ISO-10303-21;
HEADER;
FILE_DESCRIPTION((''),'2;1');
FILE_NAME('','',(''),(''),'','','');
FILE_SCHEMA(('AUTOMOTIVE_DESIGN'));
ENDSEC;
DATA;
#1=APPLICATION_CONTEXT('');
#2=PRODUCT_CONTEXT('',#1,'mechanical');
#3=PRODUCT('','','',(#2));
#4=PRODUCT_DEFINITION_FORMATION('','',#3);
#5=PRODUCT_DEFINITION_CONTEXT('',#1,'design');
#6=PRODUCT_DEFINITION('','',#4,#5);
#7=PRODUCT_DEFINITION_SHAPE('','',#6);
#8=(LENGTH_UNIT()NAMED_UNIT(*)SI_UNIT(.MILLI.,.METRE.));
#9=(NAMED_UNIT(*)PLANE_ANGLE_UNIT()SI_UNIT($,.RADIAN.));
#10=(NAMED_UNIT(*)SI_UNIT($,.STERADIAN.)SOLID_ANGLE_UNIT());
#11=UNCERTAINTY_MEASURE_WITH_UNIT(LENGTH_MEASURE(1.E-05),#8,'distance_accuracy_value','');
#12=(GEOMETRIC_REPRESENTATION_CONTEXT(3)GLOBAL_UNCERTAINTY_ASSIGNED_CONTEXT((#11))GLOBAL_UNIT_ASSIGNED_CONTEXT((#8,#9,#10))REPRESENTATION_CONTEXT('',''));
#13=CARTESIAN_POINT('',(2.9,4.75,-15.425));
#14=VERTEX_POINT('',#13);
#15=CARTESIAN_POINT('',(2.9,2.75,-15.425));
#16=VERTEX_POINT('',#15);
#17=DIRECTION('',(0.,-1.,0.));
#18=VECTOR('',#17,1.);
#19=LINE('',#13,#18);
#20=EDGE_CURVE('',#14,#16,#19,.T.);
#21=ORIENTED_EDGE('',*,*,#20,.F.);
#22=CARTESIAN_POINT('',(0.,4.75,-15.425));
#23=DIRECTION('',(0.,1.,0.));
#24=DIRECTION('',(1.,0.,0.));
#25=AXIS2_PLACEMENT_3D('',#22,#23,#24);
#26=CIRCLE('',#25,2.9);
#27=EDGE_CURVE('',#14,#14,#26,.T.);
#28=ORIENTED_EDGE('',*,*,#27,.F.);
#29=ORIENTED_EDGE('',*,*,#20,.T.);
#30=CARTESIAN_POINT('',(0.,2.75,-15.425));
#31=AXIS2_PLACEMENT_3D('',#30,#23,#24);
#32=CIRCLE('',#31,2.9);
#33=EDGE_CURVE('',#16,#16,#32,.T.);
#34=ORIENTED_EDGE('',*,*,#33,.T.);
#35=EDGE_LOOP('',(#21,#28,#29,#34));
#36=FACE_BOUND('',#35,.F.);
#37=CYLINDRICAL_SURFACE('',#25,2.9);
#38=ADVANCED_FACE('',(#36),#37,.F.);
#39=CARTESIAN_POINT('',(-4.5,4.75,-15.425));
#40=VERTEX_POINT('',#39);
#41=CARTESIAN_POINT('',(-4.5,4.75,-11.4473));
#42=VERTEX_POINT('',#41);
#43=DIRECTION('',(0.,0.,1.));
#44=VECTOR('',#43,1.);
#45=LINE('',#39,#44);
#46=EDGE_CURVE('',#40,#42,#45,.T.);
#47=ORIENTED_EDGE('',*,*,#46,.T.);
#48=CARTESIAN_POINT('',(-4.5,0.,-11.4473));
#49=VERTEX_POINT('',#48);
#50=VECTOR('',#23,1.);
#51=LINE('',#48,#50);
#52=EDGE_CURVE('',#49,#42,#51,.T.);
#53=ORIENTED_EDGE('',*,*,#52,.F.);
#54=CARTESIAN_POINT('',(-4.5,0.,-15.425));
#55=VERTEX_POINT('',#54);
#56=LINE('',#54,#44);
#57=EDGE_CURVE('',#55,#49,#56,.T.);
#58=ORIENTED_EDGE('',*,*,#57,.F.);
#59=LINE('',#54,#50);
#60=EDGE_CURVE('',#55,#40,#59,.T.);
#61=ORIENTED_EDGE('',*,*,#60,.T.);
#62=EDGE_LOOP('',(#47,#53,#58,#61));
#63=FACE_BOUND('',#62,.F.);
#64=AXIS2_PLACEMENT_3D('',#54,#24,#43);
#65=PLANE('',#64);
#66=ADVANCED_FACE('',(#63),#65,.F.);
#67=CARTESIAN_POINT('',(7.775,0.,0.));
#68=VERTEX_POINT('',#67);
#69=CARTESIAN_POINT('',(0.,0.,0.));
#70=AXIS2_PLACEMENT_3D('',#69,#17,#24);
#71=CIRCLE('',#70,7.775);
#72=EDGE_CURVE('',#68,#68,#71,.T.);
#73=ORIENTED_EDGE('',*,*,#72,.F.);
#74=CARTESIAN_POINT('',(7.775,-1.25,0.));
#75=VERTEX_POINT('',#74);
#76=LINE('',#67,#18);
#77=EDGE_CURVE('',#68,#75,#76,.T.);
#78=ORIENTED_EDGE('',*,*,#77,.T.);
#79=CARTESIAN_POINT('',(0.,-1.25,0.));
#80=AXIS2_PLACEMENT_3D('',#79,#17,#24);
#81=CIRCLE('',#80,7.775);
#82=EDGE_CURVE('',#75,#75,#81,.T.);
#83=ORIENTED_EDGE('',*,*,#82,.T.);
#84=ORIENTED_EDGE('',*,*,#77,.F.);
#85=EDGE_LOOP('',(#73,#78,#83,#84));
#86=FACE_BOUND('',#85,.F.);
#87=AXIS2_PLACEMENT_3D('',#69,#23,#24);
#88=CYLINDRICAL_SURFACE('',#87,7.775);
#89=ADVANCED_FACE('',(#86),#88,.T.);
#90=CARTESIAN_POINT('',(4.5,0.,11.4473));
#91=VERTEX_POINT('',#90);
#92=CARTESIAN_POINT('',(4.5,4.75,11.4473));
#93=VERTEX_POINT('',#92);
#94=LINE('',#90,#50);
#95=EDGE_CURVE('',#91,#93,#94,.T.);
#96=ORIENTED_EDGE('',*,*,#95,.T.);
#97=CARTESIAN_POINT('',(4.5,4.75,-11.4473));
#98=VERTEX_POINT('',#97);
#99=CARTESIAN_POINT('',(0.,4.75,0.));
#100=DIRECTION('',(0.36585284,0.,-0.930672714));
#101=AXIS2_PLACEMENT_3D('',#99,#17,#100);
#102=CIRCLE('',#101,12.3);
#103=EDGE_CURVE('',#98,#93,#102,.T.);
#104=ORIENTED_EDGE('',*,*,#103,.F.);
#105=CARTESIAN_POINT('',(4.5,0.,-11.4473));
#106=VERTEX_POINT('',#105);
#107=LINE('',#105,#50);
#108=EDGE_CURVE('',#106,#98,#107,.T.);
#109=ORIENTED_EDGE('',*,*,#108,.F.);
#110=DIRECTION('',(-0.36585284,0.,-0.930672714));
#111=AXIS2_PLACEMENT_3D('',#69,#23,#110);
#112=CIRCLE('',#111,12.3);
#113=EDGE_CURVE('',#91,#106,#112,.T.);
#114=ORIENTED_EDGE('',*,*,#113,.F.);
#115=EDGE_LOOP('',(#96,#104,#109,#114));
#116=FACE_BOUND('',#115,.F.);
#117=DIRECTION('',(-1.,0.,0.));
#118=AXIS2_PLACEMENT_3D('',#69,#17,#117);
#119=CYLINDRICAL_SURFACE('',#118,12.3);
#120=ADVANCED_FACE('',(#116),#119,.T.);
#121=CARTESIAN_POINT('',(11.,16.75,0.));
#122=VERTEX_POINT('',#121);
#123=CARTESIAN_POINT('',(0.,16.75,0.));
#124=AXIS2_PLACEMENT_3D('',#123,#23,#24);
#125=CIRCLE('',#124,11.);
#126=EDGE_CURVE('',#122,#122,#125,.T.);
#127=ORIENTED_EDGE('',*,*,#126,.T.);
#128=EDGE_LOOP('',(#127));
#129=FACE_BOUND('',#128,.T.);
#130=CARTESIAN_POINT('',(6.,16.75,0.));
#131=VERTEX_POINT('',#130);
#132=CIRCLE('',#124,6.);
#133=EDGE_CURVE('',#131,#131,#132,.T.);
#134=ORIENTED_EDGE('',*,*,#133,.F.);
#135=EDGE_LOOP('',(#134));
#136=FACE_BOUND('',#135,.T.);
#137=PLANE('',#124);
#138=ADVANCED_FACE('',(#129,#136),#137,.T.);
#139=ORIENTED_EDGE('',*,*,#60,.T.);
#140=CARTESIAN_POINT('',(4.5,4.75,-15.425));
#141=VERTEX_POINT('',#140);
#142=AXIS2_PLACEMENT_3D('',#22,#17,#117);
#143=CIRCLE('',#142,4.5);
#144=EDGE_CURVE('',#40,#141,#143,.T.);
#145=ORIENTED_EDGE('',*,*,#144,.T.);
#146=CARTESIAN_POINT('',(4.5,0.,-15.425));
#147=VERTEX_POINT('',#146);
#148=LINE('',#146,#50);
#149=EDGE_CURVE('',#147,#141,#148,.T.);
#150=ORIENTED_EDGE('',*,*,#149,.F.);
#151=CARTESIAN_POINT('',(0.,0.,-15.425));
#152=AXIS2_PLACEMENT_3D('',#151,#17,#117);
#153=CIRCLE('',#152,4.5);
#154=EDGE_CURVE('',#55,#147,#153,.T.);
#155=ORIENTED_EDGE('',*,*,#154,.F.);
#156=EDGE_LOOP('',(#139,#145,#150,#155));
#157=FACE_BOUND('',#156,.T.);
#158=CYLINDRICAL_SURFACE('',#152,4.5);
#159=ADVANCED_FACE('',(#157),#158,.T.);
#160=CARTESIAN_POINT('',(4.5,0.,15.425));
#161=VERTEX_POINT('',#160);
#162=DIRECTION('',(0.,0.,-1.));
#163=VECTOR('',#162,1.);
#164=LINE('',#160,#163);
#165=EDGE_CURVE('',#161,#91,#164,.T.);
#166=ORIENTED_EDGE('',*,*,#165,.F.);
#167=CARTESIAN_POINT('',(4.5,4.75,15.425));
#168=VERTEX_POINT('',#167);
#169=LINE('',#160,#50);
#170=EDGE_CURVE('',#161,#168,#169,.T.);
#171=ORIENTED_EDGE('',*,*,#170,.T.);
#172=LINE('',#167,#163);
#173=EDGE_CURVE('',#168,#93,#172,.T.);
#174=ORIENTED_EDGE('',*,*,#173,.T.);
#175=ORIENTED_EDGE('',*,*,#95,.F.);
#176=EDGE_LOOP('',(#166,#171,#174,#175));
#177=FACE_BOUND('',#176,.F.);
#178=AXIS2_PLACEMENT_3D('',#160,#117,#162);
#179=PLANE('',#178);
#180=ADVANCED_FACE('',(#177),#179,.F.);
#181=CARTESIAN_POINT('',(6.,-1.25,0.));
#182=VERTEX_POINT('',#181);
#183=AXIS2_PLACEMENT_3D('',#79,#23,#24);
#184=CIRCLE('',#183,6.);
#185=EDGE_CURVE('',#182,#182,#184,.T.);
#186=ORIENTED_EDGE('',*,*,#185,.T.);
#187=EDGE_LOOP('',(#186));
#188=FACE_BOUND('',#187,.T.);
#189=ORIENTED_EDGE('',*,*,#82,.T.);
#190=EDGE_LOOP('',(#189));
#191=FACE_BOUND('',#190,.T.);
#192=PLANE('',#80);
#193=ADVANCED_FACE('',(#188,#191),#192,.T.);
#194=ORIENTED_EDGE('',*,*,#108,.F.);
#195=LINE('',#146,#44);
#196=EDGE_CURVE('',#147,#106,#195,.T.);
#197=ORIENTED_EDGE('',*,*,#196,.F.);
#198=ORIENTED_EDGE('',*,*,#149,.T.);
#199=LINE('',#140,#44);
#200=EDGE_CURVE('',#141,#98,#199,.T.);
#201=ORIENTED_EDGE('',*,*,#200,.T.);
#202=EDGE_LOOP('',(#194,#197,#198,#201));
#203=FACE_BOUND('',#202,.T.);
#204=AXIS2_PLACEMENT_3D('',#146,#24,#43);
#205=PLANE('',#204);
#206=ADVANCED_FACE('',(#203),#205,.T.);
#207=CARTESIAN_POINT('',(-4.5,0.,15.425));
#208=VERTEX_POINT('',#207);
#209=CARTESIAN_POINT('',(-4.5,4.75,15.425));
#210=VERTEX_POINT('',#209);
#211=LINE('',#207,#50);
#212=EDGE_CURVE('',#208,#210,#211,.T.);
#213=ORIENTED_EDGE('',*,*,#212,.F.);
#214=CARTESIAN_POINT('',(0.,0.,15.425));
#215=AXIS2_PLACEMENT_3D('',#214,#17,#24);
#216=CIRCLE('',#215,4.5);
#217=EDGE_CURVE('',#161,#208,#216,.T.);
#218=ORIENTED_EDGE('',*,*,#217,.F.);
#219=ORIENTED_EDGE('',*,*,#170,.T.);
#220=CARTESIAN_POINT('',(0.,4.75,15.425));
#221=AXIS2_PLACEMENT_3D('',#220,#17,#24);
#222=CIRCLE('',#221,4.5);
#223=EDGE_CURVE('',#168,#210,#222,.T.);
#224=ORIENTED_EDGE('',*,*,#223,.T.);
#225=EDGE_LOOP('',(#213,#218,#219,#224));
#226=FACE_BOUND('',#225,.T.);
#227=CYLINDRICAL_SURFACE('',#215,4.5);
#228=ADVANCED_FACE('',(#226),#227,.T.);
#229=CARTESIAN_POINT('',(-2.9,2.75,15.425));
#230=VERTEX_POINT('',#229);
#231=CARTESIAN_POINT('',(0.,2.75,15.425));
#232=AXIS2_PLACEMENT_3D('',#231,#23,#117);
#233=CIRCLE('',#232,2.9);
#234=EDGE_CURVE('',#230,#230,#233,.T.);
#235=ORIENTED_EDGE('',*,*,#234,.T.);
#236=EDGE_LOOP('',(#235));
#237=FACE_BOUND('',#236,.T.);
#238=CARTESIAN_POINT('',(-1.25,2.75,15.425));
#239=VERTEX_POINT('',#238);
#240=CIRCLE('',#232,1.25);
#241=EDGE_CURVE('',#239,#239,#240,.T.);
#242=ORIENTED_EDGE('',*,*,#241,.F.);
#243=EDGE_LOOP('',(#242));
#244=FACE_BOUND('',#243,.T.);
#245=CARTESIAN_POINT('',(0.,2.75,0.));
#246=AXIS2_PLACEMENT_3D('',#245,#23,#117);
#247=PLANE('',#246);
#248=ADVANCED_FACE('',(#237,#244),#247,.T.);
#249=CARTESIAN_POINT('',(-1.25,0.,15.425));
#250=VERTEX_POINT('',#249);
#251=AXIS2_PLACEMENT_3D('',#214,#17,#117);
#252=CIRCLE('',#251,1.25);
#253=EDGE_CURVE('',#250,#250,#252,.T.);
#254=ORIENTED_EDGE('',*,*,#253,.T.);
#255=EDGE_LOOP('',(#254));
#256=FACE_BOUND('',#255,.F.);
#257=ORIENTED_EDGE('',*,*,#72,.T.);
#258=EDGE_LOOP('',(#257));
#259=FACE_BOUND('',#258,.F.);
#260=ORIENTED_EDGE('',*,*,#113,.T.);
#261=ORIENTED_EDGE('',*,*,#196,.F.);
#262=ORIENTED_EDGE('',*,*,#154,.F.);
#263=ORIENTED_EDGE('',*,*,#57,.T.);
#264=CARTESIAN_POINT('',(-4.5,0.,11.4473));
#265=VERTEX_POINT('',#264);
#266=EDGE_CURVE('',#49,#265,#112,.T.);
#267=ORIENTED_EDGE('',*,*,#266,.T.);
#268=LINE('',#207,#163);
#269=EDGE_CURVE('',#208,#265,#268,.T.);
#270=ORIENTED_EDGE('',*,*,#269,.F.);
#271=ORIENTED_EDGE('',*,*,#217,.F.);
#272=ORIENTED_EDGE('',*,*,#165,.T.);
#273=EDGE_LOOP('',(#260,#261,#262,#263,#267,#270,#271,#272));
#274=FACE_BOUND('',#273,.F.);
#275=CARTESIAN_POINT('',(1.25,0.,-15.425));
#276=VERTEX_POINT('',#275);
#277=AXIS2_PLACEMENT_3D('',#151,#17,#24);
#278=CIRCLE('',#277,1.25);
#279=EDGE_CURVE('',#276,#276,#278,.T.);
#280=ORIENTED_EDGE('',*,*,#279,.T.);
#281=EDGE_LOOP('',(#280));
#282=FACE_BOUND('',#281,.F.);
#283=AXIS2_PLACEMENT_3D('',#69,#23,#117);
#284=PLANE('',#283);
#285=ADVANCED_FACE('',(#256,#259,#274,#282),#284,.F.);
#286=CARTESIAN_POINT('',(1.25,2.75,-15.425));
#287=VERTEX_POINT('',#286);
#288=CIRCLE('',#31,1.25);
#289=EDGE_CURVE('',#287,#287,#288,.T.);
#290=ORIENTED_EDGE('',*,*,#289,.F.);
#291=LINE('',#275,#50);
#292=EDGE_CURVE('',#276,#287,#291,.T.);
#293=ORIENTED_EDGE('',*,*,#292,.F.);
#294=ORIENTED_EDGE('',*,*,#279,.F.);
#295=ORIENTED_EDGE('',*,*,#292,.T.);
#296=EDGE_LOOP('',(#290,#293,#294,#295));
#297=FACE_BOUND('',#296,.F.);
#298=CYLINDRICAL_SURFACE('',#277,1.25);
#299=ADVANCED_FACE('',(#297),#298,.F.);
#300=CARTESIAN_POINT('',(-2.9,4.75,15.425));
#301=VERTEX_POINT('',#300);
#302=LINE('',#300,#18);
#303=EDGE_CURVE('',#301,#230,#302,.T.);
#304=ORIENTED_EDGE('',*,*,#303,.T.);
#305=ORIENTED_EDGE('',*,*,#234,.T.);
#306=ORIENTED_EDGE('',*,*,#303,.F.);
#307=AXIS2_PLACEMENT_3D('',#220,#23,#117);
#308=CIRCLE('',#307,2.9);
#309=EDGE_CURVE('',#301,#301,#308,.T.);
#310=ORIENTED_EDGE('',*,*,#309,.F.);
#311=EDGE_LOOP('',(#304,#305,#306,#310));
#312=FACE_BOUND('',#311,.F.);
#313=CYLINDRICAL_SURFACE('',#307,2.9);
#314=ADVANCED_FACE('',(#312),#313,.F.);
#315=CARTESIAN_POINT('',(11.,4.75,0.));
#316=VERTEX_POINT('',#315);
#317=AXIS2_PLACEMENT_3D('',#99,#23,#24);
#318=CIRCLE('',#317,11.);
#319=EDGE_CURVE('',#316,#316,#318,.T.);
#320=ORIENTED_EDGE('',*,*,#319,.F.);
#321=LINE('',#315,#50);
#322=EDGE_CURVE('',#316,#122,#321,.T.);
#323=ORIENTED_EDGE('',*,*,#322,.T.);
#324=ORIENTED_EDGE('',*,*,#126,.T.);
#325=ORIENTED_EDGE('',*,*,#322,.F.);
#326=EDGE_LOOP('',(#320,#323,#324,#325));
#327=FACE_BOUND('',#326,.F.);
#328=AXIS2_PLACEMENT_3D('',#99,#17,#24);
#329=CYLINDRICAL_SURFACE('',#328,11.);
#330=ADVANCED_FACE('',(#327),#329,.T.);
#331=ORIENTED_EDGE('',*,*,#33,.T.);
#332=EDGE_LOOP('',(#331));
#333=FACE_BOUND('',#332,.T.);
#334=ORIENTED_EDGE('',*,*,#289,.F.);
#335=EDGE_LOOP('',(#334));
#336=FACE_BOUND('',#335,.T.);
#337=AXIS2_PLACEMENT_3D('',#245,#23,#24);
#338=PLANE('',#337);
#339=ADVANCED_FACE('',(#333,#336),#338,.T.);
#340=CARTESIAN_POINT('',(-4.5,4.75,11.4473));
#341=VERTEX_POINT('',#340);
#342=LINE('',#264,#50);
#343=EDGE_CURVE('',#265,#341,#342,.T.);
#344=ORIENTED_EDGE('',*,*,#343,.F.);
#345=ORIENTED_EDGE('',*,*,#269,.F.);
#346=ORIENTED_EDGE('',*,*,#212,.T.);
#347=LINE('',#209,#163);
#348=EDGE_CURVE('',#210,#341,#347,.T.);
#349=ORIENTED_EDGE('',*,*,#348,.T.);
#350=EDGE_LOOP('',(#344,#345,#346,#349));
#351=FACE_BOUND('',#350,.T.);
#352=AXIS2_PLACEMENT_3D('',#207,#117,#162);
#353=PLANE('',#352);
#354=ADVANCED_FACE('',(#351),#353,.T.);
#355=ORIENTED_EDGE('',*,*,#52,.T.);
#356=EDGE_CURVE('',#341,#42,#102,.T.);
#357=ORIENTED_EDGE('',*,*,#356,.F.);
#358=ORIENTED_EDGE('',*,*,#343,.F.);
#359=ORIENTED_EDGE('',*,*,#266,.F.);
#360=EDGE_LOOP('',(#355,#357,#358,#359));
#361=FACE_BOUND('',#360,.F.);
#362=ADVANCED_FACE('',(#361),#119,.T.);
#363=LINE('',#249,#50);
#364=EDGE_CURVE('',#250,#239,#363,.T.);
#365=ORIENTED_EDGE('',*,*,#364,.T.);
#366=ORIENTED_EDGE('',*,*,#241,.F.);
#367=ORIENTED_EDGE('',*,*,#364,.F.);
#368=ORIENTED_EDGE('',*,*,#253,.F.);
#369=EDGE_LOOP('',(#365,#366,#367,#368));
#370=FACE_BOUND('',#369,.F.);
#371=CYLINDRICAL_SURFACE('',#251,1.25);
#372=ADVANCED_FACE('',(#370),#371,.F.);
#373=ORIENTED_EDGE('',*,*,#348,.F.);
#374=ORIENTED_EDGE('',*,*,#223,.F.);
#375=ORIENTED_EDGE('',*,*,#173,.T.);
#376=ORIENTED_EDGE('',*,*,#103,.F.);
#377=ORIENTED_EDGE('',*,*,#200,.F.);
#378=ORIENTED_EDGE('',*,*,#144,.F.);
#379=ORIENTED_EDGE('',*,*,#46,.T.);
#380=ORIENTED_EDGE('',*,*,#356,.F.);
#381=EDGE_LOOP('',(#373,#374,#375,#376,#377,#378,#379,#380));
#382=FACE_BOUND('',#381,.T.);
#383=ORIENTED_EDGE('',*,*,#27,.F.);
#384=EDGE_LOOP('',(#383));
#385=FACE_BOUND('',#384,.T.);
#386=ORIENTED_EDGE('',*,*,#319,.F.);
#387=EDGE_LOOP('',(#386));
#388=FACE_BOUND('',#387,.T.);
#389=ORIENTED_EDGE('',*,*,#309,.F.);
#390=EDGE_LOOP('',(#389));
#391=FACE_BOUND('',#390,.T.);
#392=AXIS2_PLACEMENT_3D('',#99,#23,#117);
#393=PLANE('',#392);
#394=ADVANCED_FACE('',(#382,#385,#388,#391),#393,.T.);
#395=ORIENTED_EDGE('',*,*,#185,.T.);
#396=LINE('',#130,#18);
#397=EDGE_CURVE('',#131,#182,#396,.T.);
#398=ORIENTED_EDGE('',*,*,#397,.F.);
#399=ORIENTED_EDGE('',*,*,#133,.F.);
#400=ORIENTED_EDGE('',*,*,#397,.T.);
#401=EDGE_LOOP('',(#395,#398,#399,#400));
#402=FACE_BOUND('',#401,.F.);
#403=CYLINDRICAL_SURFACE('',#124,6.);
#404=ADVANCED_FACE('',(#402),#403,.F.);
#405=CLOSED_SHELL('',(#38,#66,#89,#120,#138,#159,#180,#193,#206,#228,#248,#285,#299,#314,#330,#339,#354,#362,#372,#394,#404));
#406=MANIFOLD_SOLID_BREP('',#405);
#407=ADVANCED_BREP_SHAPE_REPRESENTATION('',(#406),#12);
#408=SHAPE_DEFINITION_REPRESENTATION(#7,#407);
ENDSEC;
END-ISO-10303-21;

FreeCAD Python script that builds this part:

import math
import FreeCAD as App
import Part
import Sketcher

V = App.Vector
Q = App.Units.Quantity

doc = App.newDocument("Part")
body = doc.addObject("PartDesign::Body", "Body")

# Sketch on XZ plane
sketch1 = body.newObject("Sketcher::SketchObject", "Sketch")
sketch1.AttachmentSupport = (doc.getObject("XZ_Plane"), [""])
sketch1.MapMode = "FlatFace"
sketch1.addGeometry(Part.Circle(V(0, 0, 0), V(0, 0, 1), 12.3), False)
sketch1.addConstraint([
    Sketcher.Constraint("Coincident", 0, 3, -1, 1),
    Sketcher.Constraint("Diameter", 0, Q("24.6 mm")),
])
pad1 = body.newObject("PartDesign::Pad", "Pad")
pad1.Profile = sketch1
pad1.Length = 4.75
pad1.Reversed = True

# Sketch on XZ plane
sketch2 = body.newObject("Sketcher::SketchObject", "Sketch001")
sketch2.AttachmentSupport = (doc.getObject("XZ_Plane"), [""])
sketch2.MapMode = "FlatFace"
sketch2.addGeometry(Part.Circle(V(0, 0, 0), V(0, 0, 1), 7.775), False)
sketch2.addConstraint([
    Sketcher.Constraint("Coincident", 0, 3, -1, 1),
    Sketcher.Constraint("Diameter", 0, Q("15.55 mm")),
])
pad2 = body.newObject("PartDesign::Pad", "Pad001")
pad2.Profile = sketch2
pad2.Length = 1.25

# Sketch on XZ plane
sketch3 = body.newObject("Sketcher::SketchObject", "Sketch002")
sketch3.AttachmentSupport = (doc.getObject("XZ_Plane"), [""])
sketch3.MapMode = "FlatFace"
sketch3.addGeometry([
    Part.ArcOfCircle(Part.Circle(V(0, 0, 0), V(0, 0, 1), 12.3), math.radians(-111.460077), math.radians(-68.539923)),  # 0
    Part.LineSegment(V(-4.5, -11.4473, 0), V(-4.5, -15.425, 0)),  # 1
    Part.ArcOfCircle(Part.Circle(V(0, -15.425, 0), V(0, 0, 1), 4.5), math.radians(180), math.radians(360)),  # 2
    Part.LineSegment(V(4.5, -15.425, 0), V(4.5, -11.4473, 0)),  # 3
    Part.Circle(V(0, -15.425, 0), V(0, 0, 1), 1.25),  # 4
], False)
sketch3.addConstraint([
    Sketcher.Constraint("Coincident", 0, 1, 1, 1),
    Sketcher.Constraint("Tangent", 1, 2, 2, 1),
    Sketcher.Constraint("Tangent", 2, 2, 3, 1),
    Sketcher.Constraint("Coincident", 3, 2, 0, 2),
    Sketcher.Constraint("Vertical", 1),
    Sketcher.Constraint("Vertical", 3),
    Sketcher.Constraint("Coincident", 0, 3, -1, 1),
    Sketcher.Constraint("Coincident", 4, 3, 2, 3),
    Sketcher.Constraint("PointOnObject", 2, 3, -2),
    Sketcher.Constraint("Diameter", 4, Q("2.5 mm")),
    Sketcher.Constraint("Radius", 0, Q("12.3 mm")),
    Sketcher.Constraint("Radius", 2, Q("4.5 mm")),
    Sketcher.Constraint("DistanceY", 1, 2, 1, 1, Q("3.9777 mm")),
])
pad3 = body.newObject("PartDesign::Pad", "Pad002")
pad3.Profile = sketch3
pad3.Length = 4.75
pad3.Reversed = True

# Sketch on XZ plane
sketch4 = body.newObject("Sketcher::SketchObject", "Sketch003")
sketch4.AttachmentSupport = (doc.getObject("XZ_Plane"), [""])
sketch4.MapMode = "FlatFace"
sketch4.AttachmentOffset = App.Placement(V(0, 0, -4.75), App.Rotation())
sketch4.addGeometry([
    Part.Circle(V(0, -15.425, 0), V(0, 0, 1), 2.9),
    Part.Circle(V(0, -15.425, 0), V(0, 0, 1), 1.25),
], False)
sketch4.addConstraint([
    Sketcher.Constraint("Coincident", 1, 3, 0, 3),
    Sketcher.Constraint("PointOnObject", 0, 3, -2),
    Sketcher.Constraint("Diameter", 0, Q("5.8 mm")),
    Sketcher.Constraint("Diameter", 1, Q("2.5 mm")),
    Sketcher.Constraint("DistanceY", 0, 3, -1, 1, Q("15.425 mm")),
])
pocket1 = body.newObject("PartDesign::Pocket", "Pocket")
pocket1.Profile = sketch4
pocket1.Length = 2
pocket1.Reversed = True
doc.recompute()

polarpattern = body.newObject("PartDesign::PolarPattern", "PolarPattern")
polarpattern.Originals = [pad3, pocket1]
polarpattern.Axis = (doc.getObject("Y_Axis"), [""])
polarpattern.Angle = 360
polarpattern.Occurrences = 2
body.Tip = polarpattern

# Sketch on XZ plane
sketch5 = body.newObject("Sketcher::SketchObject", "Sketch004")
sketch5.AttachmentSupport = (doc.getObject("XZ_Plane"), [""])
sketch5.MapMode = "FlatFace"
sketch5.AttachmentOffset = App.Placement(V(0, 0, -4.75), App.Rotation())
sketch5.addGeometry(Part.Circle(V(0, 0, 0), V(0, 0, 1), 11), False)
sketch5.addConstraint([
    Sketcher.Constraint("Coincident", 0, 3, -1, 1),
    Sketcher.Constraint("Diameter", 0, Q("22 mm")),
])
pad4 = body.newObject("PartDesign::Pad", "Pad003")
pad4.Profile = sketch5
pad4.Length = 12
pad4.Reversed = True

# Sketch on XZ plane
sketch6 = body.newObject("Sketcher::SketchObject", "Sketch005")
sketch6.AttachmentSupport = (doc.getObject("XZ_Plane"), [""])
sketch6.MapMode = "FlatFace"
sketch6.AttachmentOffset = App.Placement(V(0, 0, -16.75), App.Rotation())
sketch6.addGeometry(Part.Circle(V(0, 0, 0), V(0, 0, 1), 6), False)
sketch6.addConstraint([
    Sketcher.Constraint("Coincident", 0, 3, -1, 1),
    Sketcher.Constraint("Diameter", 0, Q("12 mm")),
])
pocket2 = body.newObject("PartDesign::Pocket", "Pocket001")
pocket2.Profile = sketch6
pocket2.Length = 20
pocket2.Reversed = True

doc.recompute()
